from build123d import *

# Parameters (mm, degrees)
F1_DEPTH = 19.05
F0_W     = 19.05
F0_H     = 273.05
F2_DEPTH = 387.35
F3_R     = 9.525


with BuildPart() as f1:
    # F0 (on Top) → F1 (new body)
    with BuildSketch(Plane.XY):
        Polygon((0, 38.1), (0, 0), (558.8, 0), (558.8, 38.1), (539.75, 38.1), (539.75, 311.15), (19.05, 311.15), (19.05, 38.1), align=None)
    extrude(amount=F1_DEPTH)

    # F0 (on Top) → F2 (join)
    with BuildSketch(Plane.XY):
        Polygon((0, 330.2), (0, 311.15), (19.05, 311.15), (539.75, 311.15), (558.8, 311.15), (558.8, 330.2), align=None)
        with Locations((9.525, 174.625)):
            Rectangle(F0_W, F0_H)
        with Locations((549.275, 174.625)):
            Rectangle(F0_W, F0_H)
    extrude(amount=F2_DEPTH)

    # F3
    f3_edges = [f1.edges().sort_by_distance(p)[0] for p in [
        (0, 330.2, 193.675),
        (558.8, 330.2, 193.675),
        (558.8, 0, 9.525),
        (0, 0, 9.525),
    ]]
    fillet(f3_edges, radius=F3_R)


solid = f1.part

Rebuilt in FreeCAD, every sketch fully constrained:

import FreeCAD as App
import Part
import Sketcher
Q = App.Units.Quantity


def edges_at(feature, points):
    """Names of the edges that pass closest to the given points."""
    edges = feature.Shape.Edges
    near = lambda p: min(range(len(edges)), key=lambda i: edges[i].distToShape(Part.Vertex(*p))[0])
    return sorted({f"Edge{near(p) + 1}" for p in points})


def add_polygon(sketch, points):
    """Adds a closed chain of lines whose ends are joined by coincident constraints."""
    first, n = sketch.GeometryCount, len(points)
    for a, b in zip(points, points[1:] + points[:1]):
        sketch.addGeometry(Part.LineSegment(App.Vector(*a, 0), App.Vector(*b, 0)), False)
    for i in range(n):
        sketch.addConstraint(Sketcher.Constraint("Coincident", first + i, 2, first + (i + 1) % n, 1))

doc = App.newDocument("Part")
body = doc.addObject("PartDesign::Body", "Body")

sketch1 = doc.addObject("Sketcher::SketchObject", "Sketch")
body.addObject(sketch1)
sketch1.AttachmentSupport = (doc.XY_Plane, [""])
sketch1.MapMode = "FlatFace"
add_polygon(sketch1, [(0, 38), (0, 0), (559, 0), (559, 38), (540, 38), (540, 311), (19, 311), (19, 38)])
sketch1.addConstraint(Sketcher.Constraint("Vertical", 0))
sketch1.addConstraint(Sketcher.Constraint("Horizontal", 1))
sketch1.addConstraint(Sketcher.Constraint("Vertical", 2))
sketch1.addConstraint(Sketcher.Constraint("Horizontal", 3))
sketch1.addConstraint(Sketcher.Constraint("Vertical", 4))
sketch1.addConstraint(Sketcher.Constraint("Horizontal", 5))
sketch1.addConstraint(Sketcher.Constraint("Vertical", 6))
sketch1.addConstraint(Sketcher.Constraint("Horizontal", 7))
sketch1.addConstraint(Sketcher.Constraint("Coincident", 0, 2, -1, 1))
sketch1.addConstraint(Sketcher.Constraint("Horizontal", 3, 2, 6, 2))
sketch1.addConstraint(Sketcher.Constraint("Equal", 3, 7))
sketch1.addConstraint(Sketcher.Constraint("DistanceX", 1, 1, 1, 2, Q("22 in")))
sketch1.addConstraint(Sketcher.Constraint("DistanceX", 5, 2, 5, 1, Q("20.5 in")))
sketch1.addConstraint(Sketcher.Constraint("DistanceY", 0, 2, 0, 1, Q("1.5 in")))
sketch1.addConstraint(Sketcher.Constraint("DistanceY", 4, 1, 4, 2, Q("10.75 in")))
pad1 = doc.addObject("PartDesign::Pad", "Pad")
body.addObject(pad1)
pad1.Profile = sketch1
pad1.Length = Q("0.75 in")

sketch2 = doc.addObject("Sketcher::SketchObject", "Sketch001")
body.addObject(sketch2)
sketch2.AttachmentSupport = (doc.XY_Plane, [""])
sketch2.MapMode = "FlatFace"
add_polygon(sketch2, [(0, 330), (0, 38), (19, 38), (19, 311), (540, 311), (540, 38), (559, 38), (559, 330)])
sketch2.addConstraint(Sketcher.Constraint("Vertical", 0))
sketch2.addConstraint(Sketcher.Constraint("Horizontal", 1))
sketch2.addConstraint(Sketcher.Constraint("Vertical", 2))
sketch2.addConstraint(Sketcher.Constraint("Horizontal", 3))
sketch2.addConstraint(Sketcher.Constraint("Vertical", 4))
sketch2.addConstraint(Sketcher.Constraint("Horizontal", 5))
sketch2.addConstraint(Sketcher.Constraint("Vertical", 6))
sketch2.addConstraint(Sketcher.Constraint("Horizontal", 7))
sketch2.addConstraint(Sketcher.Constraint("PointOnObject", 0, 2, -2))
sketch2.addConstraint(Sketcher.Constraint("Horizontal", 1, 2, 4, 2))
sketch2.addConstraint(Sketcher.Constraint("Equal", 1, 5))
sketch2.addConstraint(Sketcher.Constraint("DistanceX", 7, 2, 7, 1, Q("22 in")))
sketch2.addConstraint(Sketcher.Constraint("DistanceX", 3, 1, 3, 2, Q("20.5 in")))
sketch2.addConstraint(Sketcher.Constraint("DistanceY", 0, 2, 0, 1, Q("11.5 in")))
sketch2.addConstraint(Sketcher.Constraint("DistanceY", -1, 1, 6, 2, Q("13 in")))
sketch2.addConstraint(Sketcher.Constraint("DistanceY", 2, 1, 2, 2, Q("10.75 in")))
pad2 = doc.addObject("PartDesign::Pad", "Pad001")
body.addObject(pad2)
pad2.Profile = sketch2
pad2.Length = Q("15.25 in")
doc.recompute()

fillet = doc.addObject("PartDesign::Fillet", "Fillet")
body.addObject(fillet)
fillet.Base = (pad2, edges_at(pad2, [
    (0, 330.2, 193.675),
    (558.8, 330.2, 193.675),
    (558.8, 0, 9.525),
    (0, 0, 9.525),
]))
fillet.Radius = Q("0.375 in")

doc.recompute()
